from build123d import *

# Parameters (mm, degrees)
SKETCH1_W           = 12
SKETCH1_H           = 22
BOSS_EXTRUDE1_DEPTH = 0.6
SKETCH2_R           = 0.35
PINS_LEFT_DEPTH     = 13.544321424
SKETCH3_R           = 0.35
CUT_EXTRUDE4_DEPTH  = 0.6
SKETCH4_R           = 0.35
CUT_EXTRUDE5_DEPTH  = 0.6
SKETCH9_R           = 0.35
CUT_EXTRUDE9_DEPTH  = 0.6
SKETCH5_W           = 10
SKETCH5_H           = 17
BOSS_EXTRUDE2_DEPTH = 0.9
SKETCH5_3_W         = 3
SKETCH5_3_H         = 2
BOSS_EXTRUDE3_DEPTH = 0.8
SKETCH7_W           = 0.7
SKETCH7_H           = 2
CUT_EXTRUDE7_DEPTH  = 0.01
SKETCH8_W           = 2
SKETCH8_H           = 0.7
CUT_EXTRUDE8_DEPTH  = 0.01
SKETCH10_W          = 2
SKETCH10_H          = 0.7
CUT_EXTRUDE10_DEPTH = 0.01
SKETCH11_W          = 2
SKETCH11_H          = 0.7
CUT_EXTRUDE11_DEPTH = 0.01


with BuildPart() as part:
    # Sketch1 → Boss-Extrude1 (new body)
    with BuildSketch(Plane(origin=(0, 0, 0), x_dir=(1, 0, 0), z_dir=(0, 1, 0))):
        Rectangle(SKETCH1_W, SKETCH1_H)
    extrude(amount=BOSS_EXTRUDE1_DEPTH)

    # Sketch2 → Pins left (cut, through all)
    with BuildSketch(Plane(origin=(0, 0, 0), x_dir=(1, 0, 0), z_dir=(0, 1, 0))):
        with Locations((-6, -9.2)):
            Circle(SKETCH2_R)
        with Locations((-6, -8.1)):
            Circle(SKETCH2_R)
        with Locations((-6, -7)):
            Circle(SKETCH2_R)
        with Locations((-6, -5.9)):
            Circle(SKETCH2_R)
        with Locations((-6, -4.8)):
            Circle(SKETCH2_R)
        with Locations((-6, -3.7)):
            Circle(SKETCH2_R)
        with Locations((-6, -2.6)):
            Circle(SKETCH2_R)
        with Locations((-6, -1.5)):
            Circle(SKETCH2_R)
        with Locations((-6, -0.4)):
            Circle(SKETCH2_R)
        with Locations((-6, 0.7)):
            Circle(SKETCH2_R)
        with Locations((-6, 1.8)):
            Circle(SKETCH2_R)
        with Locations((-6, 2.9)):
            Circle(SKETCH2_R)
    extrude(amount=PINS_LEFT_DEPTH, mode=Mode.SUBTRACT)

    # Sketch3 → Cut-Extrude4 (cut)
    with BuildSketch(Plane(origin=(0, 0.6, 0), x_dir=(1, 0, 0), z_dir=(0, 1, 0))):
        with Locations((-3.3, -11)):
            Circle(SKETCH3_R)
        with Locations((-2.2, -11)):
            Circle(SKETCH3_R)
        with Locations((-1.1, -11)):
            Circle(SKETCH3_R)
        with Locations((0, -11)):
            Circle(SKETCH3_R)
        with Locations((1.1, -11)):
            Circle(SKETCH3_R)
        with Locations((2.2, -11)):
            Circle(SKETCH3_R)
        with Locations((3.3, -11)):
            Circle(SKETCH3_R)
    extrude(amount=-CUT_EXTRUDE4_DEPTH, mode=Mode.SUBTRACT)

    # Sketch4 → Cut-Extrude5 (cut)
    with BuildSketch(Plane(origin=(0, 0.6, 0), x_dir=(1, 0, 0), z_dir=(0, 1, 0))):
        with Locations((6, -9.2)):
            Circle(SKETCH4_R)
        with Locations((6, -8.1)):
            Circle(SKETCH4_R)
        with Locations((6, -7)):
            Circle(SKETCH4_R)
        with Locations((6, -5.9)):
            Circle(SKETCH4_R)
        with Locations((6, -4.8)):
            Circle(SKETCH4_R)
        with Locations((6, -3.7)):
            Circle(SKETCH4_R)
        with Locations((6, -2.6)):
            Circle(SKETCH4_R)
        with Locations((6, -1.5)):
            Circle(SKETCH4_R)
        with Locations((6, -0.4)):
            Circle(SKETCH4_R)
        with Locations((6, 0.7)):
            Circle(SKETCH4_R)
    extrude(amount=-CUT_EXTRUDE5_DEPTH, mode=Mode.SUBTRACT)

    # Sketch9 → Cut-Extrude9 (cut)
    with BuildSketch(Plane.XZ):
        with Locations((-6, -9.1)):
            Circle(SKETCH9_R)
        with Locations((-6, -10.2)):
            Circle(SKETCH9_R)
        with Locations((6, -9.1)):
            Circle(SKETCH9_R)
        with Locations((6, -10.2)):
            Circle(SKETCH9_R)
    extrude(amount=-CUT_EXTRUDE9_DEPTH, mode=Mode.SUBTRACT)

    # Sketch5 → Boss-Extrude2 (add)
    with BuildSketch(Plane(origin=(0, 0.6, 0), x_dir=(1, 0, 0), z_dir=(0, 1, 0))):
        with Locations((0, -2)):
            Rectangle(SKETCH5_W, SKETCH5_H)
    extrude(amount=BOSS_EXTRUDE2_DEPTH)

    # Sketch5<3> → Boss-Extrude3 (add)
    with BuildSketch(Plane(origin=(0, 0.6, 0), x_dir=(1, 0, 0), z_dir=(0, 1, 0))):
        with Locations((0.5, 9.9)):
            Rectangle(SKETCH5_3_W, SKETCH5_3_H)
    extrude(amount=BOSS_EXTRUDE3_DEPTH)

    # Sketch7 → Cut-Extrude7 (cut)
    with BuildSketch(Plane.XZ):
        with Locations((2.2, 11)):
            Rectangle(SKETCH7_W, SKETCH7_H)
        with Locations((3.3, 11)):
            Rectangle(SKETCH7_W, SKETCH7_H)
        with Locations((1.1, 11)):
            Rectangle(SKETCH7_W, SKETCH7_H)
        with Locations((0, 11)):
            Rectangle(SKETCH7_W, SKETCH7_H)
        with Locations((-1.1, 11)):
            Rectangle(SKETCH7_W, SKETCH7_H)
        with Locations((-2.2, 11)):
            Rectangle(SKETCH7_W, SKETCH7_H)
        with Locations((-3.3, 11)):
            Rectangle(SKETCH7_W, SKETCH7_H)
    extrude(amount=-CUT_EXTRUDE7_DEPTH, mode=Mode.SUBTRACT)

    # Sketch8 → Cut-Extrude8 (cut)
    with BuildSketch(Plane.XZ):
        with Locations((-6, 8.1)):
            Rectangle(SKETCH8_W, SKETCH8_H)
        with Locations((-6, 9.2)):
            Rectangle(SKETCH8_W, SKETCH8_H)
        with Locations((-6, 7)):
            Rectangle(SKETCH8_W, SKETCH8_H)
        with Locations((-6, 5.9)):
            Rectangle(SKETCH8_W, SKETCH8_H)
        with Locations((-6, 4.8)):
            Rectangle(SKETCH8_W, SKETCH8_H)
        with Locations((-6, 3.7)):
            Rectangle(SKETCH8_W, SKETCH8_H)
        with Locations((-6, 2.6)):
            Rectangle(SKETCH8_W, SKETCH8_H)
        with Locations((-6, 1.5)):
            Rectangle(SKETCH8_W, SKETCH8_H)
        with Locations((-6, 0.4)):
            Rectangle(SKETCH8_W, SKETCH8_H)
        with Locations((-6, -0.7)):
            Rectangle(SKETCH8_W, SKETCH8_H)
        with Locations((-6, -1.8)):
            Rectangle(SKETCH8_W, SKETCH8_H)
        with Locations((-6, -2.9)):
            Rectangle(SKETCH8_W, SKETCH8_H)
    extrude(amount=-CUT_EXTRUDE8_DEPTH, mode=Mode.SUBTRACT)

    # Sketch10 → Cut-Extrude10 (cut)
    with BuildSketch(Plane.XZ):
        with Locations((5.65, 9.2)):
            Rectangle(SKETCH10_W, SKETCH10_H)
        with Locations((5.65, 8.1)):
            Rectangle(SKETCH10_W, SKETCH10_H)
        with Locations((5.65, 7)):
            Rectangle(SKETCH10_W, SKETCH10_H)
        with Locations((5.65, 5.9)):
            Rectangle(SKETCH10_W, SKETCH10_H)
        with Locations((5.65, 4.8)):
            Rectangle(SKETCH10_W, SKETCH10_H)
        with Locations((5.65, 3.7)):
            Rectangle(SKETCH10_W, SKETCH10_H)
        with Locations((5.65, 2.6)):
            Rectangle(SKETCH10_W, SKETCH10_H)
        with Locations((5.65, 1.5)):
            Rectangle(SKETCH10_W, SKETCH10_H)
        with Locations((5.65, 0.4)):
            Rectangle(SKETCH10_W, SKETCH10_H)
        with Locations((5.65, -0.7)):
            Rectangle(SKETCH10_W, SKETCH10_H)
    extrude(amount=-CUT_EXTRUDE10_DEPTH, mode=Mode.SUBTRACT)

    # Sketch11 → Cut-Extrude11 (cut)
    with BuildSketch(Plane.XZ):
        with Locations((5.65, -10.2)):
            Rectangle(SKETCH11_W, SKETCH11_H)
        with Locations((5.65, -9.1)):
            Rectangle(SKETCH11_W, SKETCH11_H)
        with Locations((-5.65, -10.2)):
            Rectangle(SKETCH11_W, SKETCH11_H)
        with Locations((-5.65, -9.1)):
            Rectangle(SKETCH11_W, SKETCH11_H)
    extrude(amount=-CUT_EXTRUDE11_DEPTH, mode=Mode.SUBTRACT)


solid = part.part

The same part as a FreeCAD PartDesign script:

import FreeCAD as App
import Part
import Sketcher
from FreeCAD import Vector
Q = App.Units.Quantity


def add_polygon(sketch, points):
    """Adds a closed chain of lines whose ends are joined by coincident constraints."""
    first, n = sketch.GeometryCount, len(points)
    for a, b in zip(points, points[1:] + points[:1]):
        sketch.addGeometry(Part.LineSegment(App.Vector(*a, 0), App.Vector(*b, 0)), False)
    for i in range(n):
        sketch.addConstraint(Sketcher.Constraint("Coincident", first + i, 2, first + (i + 1) % n, 1))

doc = App.newDocument("Part")
body = doc.addObject("PartDesign::Body", "Body")

sketch1 = body.newObject("Sketcher::SketchObject", "Sketch")
sketch1.AttachmentSupport = (doc.getObject("XZ_Plane"), [""])
sketch1.MapMode = "FlatFace"
add_polygon(sketch1, [(-6, -11), (-6, 11), (6, 11), (6, -11)])
sketch1.addConstraint([
    Sketcher.Constraint("Vertical", 0),
    Sketcher.Constraint("Horizontal", 1),
    Sketcher.Constraint("Vertical", 2),
    Sketcher.Constraint("Horizontal", 3),
    Sketcher.Constraint("Symmetric", 0, 2, 2, 2, -1, 1),
    Sketcher.Constraint("DistanceX", 1, 1, 1, 2, Q("12 mm")),
    Sketcher.Constraint("DistanceY", 0, 1, 0, 2, Q("22 mm")),
])
pad1 = body.newObject("PartDesign::Pad", "Pad")
pad1.Profile = sketch1
pad1.Length = 0.6
pad1.Reversed = True

sketch2 = body.newObject("Sketcher::SketchObject", "Sketch001")
sketch2.AttachmentSupport = (doc.getObject("XZ_Plane"), [""])
sketch2.MapMode = "FlatFace"
sketch2.addGeometry([
    Part.Circle(Vector(-6, 9.2, 0), Vector(0, 0, 1), 0.35),
    Part.Circle(Vector(-6, 8.1, 0), Vector(0, 0, 1), 0.35),
    Part.Circle(Vector(-6, 7, 0), Vector(0, 0, 1), 0.35),
    Part.Circle(Vector(-6, 5.9, 0), Vector(0, 0, 1), 0.35),
    Part.Circle(Vector(-6, 4.8, 0), Vector(0, 0, 1), 0.35),
    Part.Circle(Vector(-6, 3.7, 0), Vector(0, 0, 1), 0.35),
    Part.Circle(Vector(-6, 2.6, 0), Vector(0, 0, 1), 0.35),
    Part.Circle(Vector(-6, 1.5, 0), Vector(0, 0, 1), 0.35),
    Part.Circle(Vector(-6, 0.4, 0), Vector(0, 0, 1), 0.35),
    Part.Circle(Vector(-6, -0.7, 0), Vector(0, 0, 1), 0.35),
    Part.Circle(Vector(-6, -1.8, 0), Vector(0, 0, 1), 0.35),
    Part.Circle(Vector(-6, -2.9, 0), Vector(0, 0, 1), 0.35),
], False)
sketch2.addConstraint([
    Sketcher.Constraint("Equal", 0, 1),
    Sketcher.Constraint("Equal", 1, 2),
    Sketcher.Constraint("Equal", 2, 3),
    Sketcher.Constraint("Equal", 3, 4),
    Sketcher.Constraint("Equal", 4, 5),
    Sketcher.Constraint("Equal", 5, 6),
    Sketcher.Constraint("Equal", 6, 7),
    Sketcher.Constraint("Equal", 7, 8),
    Sketcher.Constraint("Equal", 8, 9),
    Sketcher.Constraint("Equal", 9, 10),
    Sketcher.Constraint("Equal", 10, 11),
    Sketcher.Constraint("Vertical", 0, 3, 1, 3),
    Sketcher.Constraint("Vertical", 1, 3, 2, 3),
    Sketcher.Constraint("Vertical", 2, 3, 3, 3),
    Sketcher.Constraint("Vertical", 3, 3, 4, 3),
    Sketcher.Constraint("Vertical", 4, 3, 5, 3),
    Sketcher.Constraint("Vertical", 5, 3, 6, 3),
    Sketcher.Constraint("Vertical", 6, 3, 7, 3),
    Sketcher.Constraint("Vertical", 7, 3, 8, 3),
    Sketcher.Constraint("Vertical", 8, 3, 9, 3),
    Sketcher.Constraint("Vertical", 9, 3, 10, 3),
    Sketcher.Constraint("Vertical", 10, 3, 11, 3),
    Sketcher.Constraint("Diameter", 0, Q("0.7 mm")),
    Sketcher.Constraint("DistanceX", 0, 3, -1, 1, Q("6 mm")),
    Sketcher.Constraint("DistanceY", -1, 1, 2, 3, Q("7 mm")),
    Sketcher.Constraint("DistanceY", -1, 1, 0, 3, Q("9.2 mm")),
    Sketcher.Constraint("DistanceY", -1, 1, 1, 3, Q("8.1 mm")),
    Sketcher.Constraint("DistanceY", -1, 1, 3, 3, Q("5.9 mm")),
    Sketcher.Constraint("DistanceY", -1, 1, 4, 3, Q("4.8 mm")),
    Sketcher.Constraint("DistanceY", -1, 1, 5, 3, Q("3.7 mm")),
    Sketcher.Constraint("DistanceY", -1, 1, 6, 3, Q("2.6 mm")),
    Sketcher.Constraint("DistanceY", -1, 1, 7, 3, Q("1.5 mm")),
    Sketcher.Constraint("DistanceY", -1, 1, 8, 3, Q("0.4 mm")),
    Sketcher.Constraint("DistanceY", 9, 3, -1, 1, Q("0.7 mm")),
    Sketcher.Constraint("DistanceY", 10, 3, -1, 1, Q("1.8 mm")),
    Sketcher.Constraint("DistanceY", 11, 3, -1, 1, Q("2.9 mm")),
])
pocket1 = body.newObject("PartDesign::Pocket", "Pocket")
pocket1.Profile = sketch2
pocket1.Type = "ThroughAll"

sketch3 = body.newObject("Sketcher::SketchObject", "Sketch002")
sketch3.AttachmentSupport = (doc.getObject("XZ_Plane"), [""])
sketch3.MapMode = "FlatFace"
sketch3.AttachmentOffset = App.Placement(Vector(0, 0, -0.6), App.Rotation())
sketch3.addGeometry([
    Part.Circle(Vector(-3.3, 11, 0), Vector(0, 0, 1), 0.35),
    Part.Circle(Vector(-2.2, 11, 0), Vector(0, 0, 1), 0.35),
    Part.Circle(Vector(-1.1, 11, 0), Vector(0, 0, 1), 0.35),
    Part.Circle(Vector(0, 11, 0), Vector(0, 0, 1), 0.35),
    Part.Circle(Vector(1.1, 11, 0), Vector(0, 0, 1), 0.35),
    Part.Circle(Vector(2.2, 11, 0), Vector(0, 0, 1), 0.35),
    Part.Circle(Vector(3.3, 11, 0), Vector(0, 0, 1), 0.35),
], False)
sketch3.addConstraint([
    Sketcher.Constraint("Equal", 0, 1),
    Sketcher.Constraint("Equal", 1, 2),
    Sketcher.Constraint("Equal", 2, 3),
    Sketcher.Constraint("Equal", 3, 4),
    Sketcher.Constraint("Equal", 4, 5),
    Sketcher.Constraint("Equal", 5, 6),
    Sketcher.Constraint("Symmetric", 2, 3, 4, 3, -2),
    Sketcher.Constraint("Symmetric", 1, 3, 5, 3, -2),
    Sketcher.Constraint("Symmetric", 0, 3, 6, 3, -2),
    Sketcher.Constraint("PointOnObject", 3, 3, -2),
    Sketcher.Constraint("Horizontal", 0, 3, 1, 3),
    Sketcher.Constraint("Horizontal", 1, 3, 2, 3),
    Sketcher.Constraint("Horizontal", 2, 3, 3, 3),
    Sketcher.Constraint("Diameter", 0, Q("0.7 mm")),
    Sketcher.Constraint("DistanceY", -1, 1, 0, 3, Q("11 mm")),
    Sketcher.Constraint("DistanceX", 0, 3, -1, 1, Q("3.3 mm")),
    Sketcher.Constraint("DistanceX", 1, 3, -1, 1, Q("2.2 mm")),
    Sketcher.Constraint("DistanceX", 2, 3, -1, 1, Q("1.1 mm")),
])
pocket2 = body.newObject("PartDesign::Pocket", "Pocket001")
pocket2.Profile = sketch3
pocket2.Length = 0.6
pocket2.Reversed = True

sketch4 = body.newObject("Sketcher::SketchObject", "Sketch003")
sketch4.AttachmentSupport = (doc.getObject("XZ_Plane"), [""])
sketch4.MapMode = "FlatFace"
sketch4.AttachmentOffset = App.Placement(Vector(0, 0, -0.6), App.Rotation())
sketch4.addGeometry([
    Part.Circle(Vector(6, 9.2, 0), Vector(0, 0, 1), 0.35),
    Part.Circle(Vector(6, 8.1, 0), Vector(0, 0, 1), 0.35),
    Part.Circle(Vector(6, 7, 0), Vector(0, 0, 1), 0.35),
    Part.Circle(Vector(6, 5.9, 0), Vector(0, 0, 1), 0.35),
    Part.Circle(Vector(6, 4.8, 0), Vector(0, 0, 1), 0.35),
    Part.Circle(Vector(6, 3.7, 0), Vector(0, 0, 1), 0.35),
    Part.Circle(Vector(6, 2.6, 0), Vector(0, 0, 1), 0.35),
    Part.Circle(Vector(6, 1.5, 0), Vector(0, 0, 1), 0.35),
    Part.Circle(Vector(6, 0.4, 0), Vector(0, 0, 1), 0.35),
    Part.Circle(Vector(6, -0.7, 0), Vector(0, 0, 1), 0.35),
], False)
sketch4.addConstraint([
    Sketcher.Constraint("Equal", 0, 1),
    Sketcher.Constraint("Equal", 1, 2),
    Sketcher.Constraint("Equal", 2, 3),
    Sketcher.Constraint("Equal", 3, 4),
    Sketcher.Constraint("Equal", 4, 5),
    Sketcher.Constraint("Equal", 5, 6),
    Sketcher.Constraint("Equal", 6, 7),
    Sketcher.Constraint("Equal", 7, 8),
    Sketcher.Constraint("Equal", 8, 9),
    Sketcher.Constraint("Vertical", 0, 3, 1, 3),
    Sketcher.Constraint("Vertical", 1, 3, 2, 3),
    Sketcher.Constraint("Vertical", 2, 3, 3, 3),
    Sketcher.Constraint("Vertical", 3, 3, 4, 3),
    Sketcher.Constraint("Vertical", 4, 3, 5, 3),
    Sketcher.Constraint("Vertical", 5, 3, 6, 3),
    Sketcher.Constraint("Vertical", 6, 3, 7, 3),
    Sketcher.Constraint("Vertical", 7, 3, 8, 3),
    Sketcher.Constraint("Vertical", 8, 3, 9, 3),
    Sketcher.Constraint("Diameter", 0, Q("0.7 mm")),
    Sketcher.Constraint("DistanceX", -1, 1, 0, 3, Q("6 mm")),
    Sketcher.Constraint("DistanceY", -1, 1, 2, 3, Q("7 mm")),
    Sketcher.Constraint("DistanceY", -1, 1, 0, 3, Q("9.2 mm")),
    Sketcher.Constraint("DistanceY", -1, 1, 1, 3, Q("8.1 mm")),
    Sketcher.Constraint("DistanceY", -1, 1, 3, 3, Q("5.9 mm")),
    Sketcher.Constraint("DistanceY", -1, 1, 4, 3, Q("4.8 mm")),
    Sketcher.Constraint("DistanceY", -1, 1, 5, 3, Q("3.7 mm")),
    Sketcher.Constraint("DistanceY", -1, 1, 6, 3, Q("2.6 mm")),
    Sketcher.Constraint("DistanceY", -1, 1, 7, 3, Q("1.5 mm")),
    Sketcher.Constraint("DistanceY", -1, 1, 8, 3, Q("0.4 mm")),
    Sketcher.Constraint("DistanceY", 9, 3, -1, 1, Q("0.7 mm")),
])
pocket3 = body.newObject("PartDesign::Pocket", "Pocket002")
pocket3.Profile = sketch4
pocket3.Length = 0.6
pocket3.Reversed = True

sketch5 = body.newObject("Sketcher::SketchObject", "Sketch004")
sketch5.AttachmentSupport = (doc.getObject("XZ_Plane"), [""])
sketch5.MapMode = "FlatFace"
sketch5.addGeometry([
    Part.Circle(Vector(-6, -9.1, 0), Vector(0, 0, 1), 0.35),
    Part.Circle(Vector(-6, -10.2, 0), Vector(0, 0, 1), 0.35),
    Part.Circle(Vector(6, -9.1, 0), Vector(0, 0, 1), 0.35),
    Part.Circle(Vector(6, -10.2, 0), Vector(0, 0, 1), 0.35),
], False)
sketch5.addConstraint([
    Sketcher.Constraint("Equal", 0, 1),
    Sketcher.Constraint("Equal", 1, 2),
    Sketcher.Constraint("Equal", 2, 3),
    Sketcher.Constraint("Symmetric", 0, 3, 2, 3, -2),
    Sketcher.Constraint("Symmetric", 1, 3, 3, 3, -2),
    Sketcher.Constraint("Vertical", 0, 3, 1, 3),
    Sketcher.Constraint("Diameter", 0, Q("0.7 mm")),
    Sketcher.Constraint("DistanceX", 0, 3, -1, 1, Q("6 mm")),
    Sketcher.Constraint("DistanceY", 0, 3, -1, 1, Q("9.1 mm")),
    Sketcher.Constraint("DistanceY", 1, 3, -1, 1, Q("10.2 mm")),
])
pocket4 = body.newObject("PartDesign::Pocket", "Pocket003")
pocket4.Profile = sketch5
pocket4.Length = 0.6

sketch6 = body.newObject("Sketcher::SketchObject", "Sketch005")
sketch6.AttachmentSupport = (doc.getObject("XZ_Plane"), [""])
sketch6.MapMode = "FlatFace"
sketch6.AttachmentOffset = App.Placement(Vector(0, 0, -0.6), App.Rotation())
add_polygon(sketch6, [(-5, -6), (-5, 10), (5, 10), (5, -6)])
sketch6.addConstraint([
    Sketcher.Constraint("Vertical", 0),
    Sketcher.Constraint("Horizontal", 1),
    Sketcher.Constraint("Vertical", 2),
    Sketcher.Constraint("Horizontal", 3),
    Sketcher.Constraint("DistanceX", 1, 1, 1, 2, Q("10 mm")),
    Sketcher.Constraint("DistanceY", 0, 1, 0, 2, Q("17 mm")),
    Sketcher.Constraint("DistanceX", 0, 2, -1, 1, Q("5 mm")),
    Sketcher.Constraint("DistanceY", -1, 1, 0, 2, Q("10.5 mm")),
])
pad2 = body.newObject("PartDesign::Pad", "Pad001")
pad2.Profile = sketch6
pad2.Length = 0.9
pad2.Reversed = True

sketch7 = body.newObject("Sketcher::SketchObject", "Sketch006")
sketch7.AttachmentSupport = (doc.getObject("XZ_Plane"), [""])
sketch7.MapMode = "FlatFace"
sketch7.AttachmentOffset = App.Placement(Vector(0, 0, -0.6), App.Rotation())
add_polygon(sketch7, [(-1, -10.9), (-1, -8.9), (2, -8.9), (2, -10.9)])
sketch7.addConstraint([
    Sketcher.Constraint("Vertical", 0),
    Sketcher.Constraint("Horizontal", 1),
    Sketcher.Constraint("Vertical", 2),
    Sketcher.Constraint("Horizontal", 3),
    Sketcher.Constraint("DistanceX", 1, 1, 1, 2, Q("3 mm")),
    Sketcher.Constraint("DistanceY", 0, 1, 0, 2, Q("2 mm")),
    Sketcher.Constraint("DistanceX", 0, 2, -1, 1, Q("1 mm")),
    Sketcher.Constraint("DistanceY", 0, 2, -1, 1, Q("8.9 mm")),
])
pad3 = body.newObject("PartDesign::Pad", "Pad002")
pad3.Profile = sketch7
pad3.Length = 0.8
pad3.Reversed = True

sketch8 = body.newObject("Sketcher::SketchObject", "Sketch007")
sketch8.AttachmentSupport = (doc.getObject("XZ_Plane"), [""])
sketch8.MapMode = "FlatFace"
add_polygon(sketch8, [(1.9, 12), (1.9, 10), (2.5, 10), (2.5, 12)])
add_polygon(sketch8, [(3, 12), (3, 10), (3.6, 10), (3.6, 12)])
add_polygon(sketch8, [(0.8, 12), (0.8, 10), (1.4, 10), (1.4, 12)])
add_polygon(sketch8, [(-0.3, 12), (-0.3, 10), (0.3, 10), (0.3, 12)])
add_polygon(sketch8, [(-1.4, 12), (-1.4, 10), (-0.8, 10), (-0.8, 12)])
add_polygon(sketch8, [(-2.5, 12), (-2.5, 10), (-1.9, 10), (-1.9, 12)])
add_polygon(sketch8, [(-3.6, 12), (-3.6, 10), (-3, 10), (-3, 12)])
sketch8.addConstraint([
    Sketcher.Constraint("Vertical", 0),
    Sketcher.Constraint("Horizontal", 1),
    Sketcher.Constraint("Vertical", 2),
    Sketcher.Constraint("Horizontal", 3),
    Sketcher.Constraint("Vertical", 4),
    Sketcher.Constraint("Horizontal", 5),
    Sketcher.Constraint("Vertical", 6),
    Sketcher.Constraint("Horizontal", 7),
    Sketcher.Constraint("Vertical", 8),
    Sketcher.Constraint("Horizontal", 9),
    Sketcher.Constraint("Vertical", 10),
    Sketcher.Constraint("Horizontal", 11),
    Sketcher.Constraint("Vertical", 12),
    Sketcher.Constraint("Horizontal", 13),
    Sketcher.Constraint("Vertical", 14),
    Sketcher.Constraint("Horizontal", 15),
    Sketcher.Constraint("Vertical", 16),
    Sketcher.Constraint("Horizontal", 17),
    Sketcher.Constraint("Vertical", 18),
    Sketcher.Constraint("Horizontal", 19),
    Sketcher.Constraint("Vertical", 20),
    Sketcher.Constraint("Horizontal", 21),
    Sketcher.Constraint("Vertical", 22),
    Sketcher.Constraint("Horizontal", 23),
    Sketcher.Constraint("Vertical", 24),
    Sketcher.Constraint("Horizontal", 25),
    Sketcher.Constraint("Vertical", 26),
    Sketcher.Constraint("Horizontal", 27),
    Sketcher.Constraint("Symmetric", 9, 2, 16, 2, -2),
    Sketcher.Constraint("Symmetric", 11, 2, 18, 2, -2),
    Sketcher.Constraint("Symmetric", 1, 2, 20, 2, -2),
    Sketcher.Constraint("Symmetric", 3, 2, 22, 2, -2),
    Sketcher.Constraint("Symmetric", 5, 2, 24, 2, -2),
    Sketcher.Constraint("Symmetric", 7, 2, 26, 2, -2),
    Sketcher.Constraint("Horizontal", 1, 2, 4, 2),
    Sketcher.Constraint("Horizontal", 3, 2, 6, 2),
    Sketcher.Constraint("Horizontal", 5, 2, 8, 2),
    Sketcher.Constraint("Horizontal", 7, 2, 10, 2),
    Sketcher.Constraint("Horizontal", 9, 2, 12, 2),
    Sketcher.Constraint("Horizontal", 11, 2, 14, 2),
    Sketcher.Constraint("Equal", 3, 5),
    Sketcher.Constraint("Equal", 7, 9),
    Sketcher.Constraint("Equal", 11, 13),
    Sketcher.Constraint("DistanceY", 0, 2, 0, 1, Q("2 mm")),
    Sketcher.Constraint("DistanceX", 1, 1, 1, 2, Q("0.7 mm")),
    Sketcher.Constraint("DistanceY", -1, 1, 0, 2, Q("10 mm")),
    Sketcher.Constraint("DistanceX", 1, 2, 4, 2, Q("0.4 mm")),
    Sketcher.Constraint("DistanceX", 8, 2, 0, 2, Q("1.1 mm")),
    Sketcher.Constraint("DistanceX", 12, 2, 8, 2, Q("1.1 mm")),
    Sketcher.Constraint("DistanceX", 16, 2, 12, 2, Q("1.1 mm")),
])
pocket5 = body.newObject("PartDesign::Pocket", "Pocket004")
pocket5.Profile = sketch8
pocket5.Length = 0.01

sketch9 = body.newObject("Sketcher::SketchObject", "Sketch008")
sketch9.AttachmentSupport = (doc.getObject("XZ_Plane"), [""])
sketch9.MapMode = "FlatFace"
add_polygon(sketch9, [(-7, 8.4), (-7, 7.8), (-5, 7.8), (-5, 8.4)])
add_polygon(sketch9, [(-7, 9.6), (-7, 8.8), (-5, 8.8), (-5, 9.6)])
add_polygon(sketch9, [(-7, 7.3), (-7, 6.7), (-5, 6.7), (-5, 7.3)])
add_polygon(sketch9, [(-7, 6.2), (-7, 5.5), (-5, 5.5), (-5, 6.2)])
add_polygon(sketch9, [(-7, 5.2), (-7, 4.5), (-5, 4.5), (-5, 5.2)])
add_polygon(sketch9, [(-7, 4), (-7, 3.4), (-5, 3.4), (-5, 4)])
add_polygon(sketch9, [(-7, 3), (-7, 2.2), (-5, 2.2), (-5, 3)])
add_polygon(sketch9, [(-7, 1.9), (-7, 1.1), (-5, 1.1), (-5, 1.9)])
add_polygon(sketch9, [(-7, 0.8), (-7, 0.1), (-5, 0.1), (-5, 0.8)])
add_polygon(sketch9, [(-7, -0.3), (-7, -1.1), (-5, -1.1), (-5, -0.3)])
add_polygon(sketch9, [(-7, -1.4), (-7, -2.1), (-5, -2.1), (-5, -1.4)])
add_polygon(sketch9, [(-7, -2.5), (-7, -3.2), (-5, -3.2), (-5, -2.5)])
sketch9.addConstraint([
    Sketcher.Constraint("Vertical", 0),
    Sketcher.Constraint("Horizontal", 1),
    Sketcher.Constraint("Vertical", 2),
    Sketcher.Constraint("Horizontal", 3),
    Sketcher.Constraint("Vertical", 4),
    Sketcher.Constraint("Horizontal", 5),
    Sketcher.Constraint("Vertical", 6),
    Sketcher.Constraint("Horizontal", 7),
    Sketcher.Constraint("Vertical", 8),
    Sketcher.Constraint("Horizontal", 9),
    Sketcher.Constraint("Vertical", 10),
    Sketcher.Constraint("Horizontal", 11),
    Sketcher.Constraint("Vertical", 12),
    Sketcher.Constraint("Horizontal", 13),
    Sketcher.Constraint("Vertical", 14),
    Sketcher.Constraint("Horizontal", 15),
    Sketcher.Constraint("Vertical", 16),
    Sketcher.Constraint("Horizontal", 17),
    Sketcher.Constraint("Vertical", 18),
    Sketcher.Constraint("Horizontal", 19),
    Sketcher.Constraint("Vertical", 20),
    Sketcher.Constraint("Horizontal", 21),
    Sketcher.Constraint("Vertical", 22),
    Sketcher.Constraint("Horizontal", 23),
    Sketcher.Constraint("Vertical", 24),
    Sketcher.Constraint("Horizontal", 25),
    Sketcher.Constraint("Vertical", 26),
    Sketcher.Constraint("Horizontal", 27),
    Sketcher.Constraint("Vertical", 28),
    Sketcher.Constraint("Horizontal", 29),
    Sketcher.Constraint("Vertical", 30),
    Sketcher.Constraint("Horizontal", 31),
    Sketcher.Constraint("Vertical", 32),
    Sketcher.Constraint("Horizontal", 33),
    Sketcher.Constraint("Vertical", 34),
    Sketcher.Constraint("Horizontal", 35),
    Sketcher.Constraint("Vertical", 36),
    Sketcher.Constraint("Horizontal", 37),
    Sketcher.Constraint("Vertical", 38),
    Sketcher.Constraint("Horizontal", 39),
    Sketcher.Constraint("Vertical", 40),
    Sketcher.Constraint("Horizontal", 41),
    Sketcher.Constraint("Vertical", 42),
    Sketcher.Constraint("Horizontal", 43),
    Sketcher.Constraint("Vertical", 44),
    Sketcher.Constraint("Horizontal", 45),
    Sketcher.Constraint("Vertical", 46),
    Sketcher.Constraint("Horizontal", 47),
    Sketcher.Constraint("Vertical", 3, 2, 4, 2),
    Sketcher.Constraint("Vertical", 2, 2, 5, 2),
    Sketcher.Constraint("Vertical", 7, 2, 8, 2),
    Sketcher.Constraint("Vertical", 6, 2, 9, 2),
    Sketcher.Constraint("Vertical", 11, 2, 12, 2),
    Sketcher.Constraint("Vertical", 10, 2, 13, 2),
    Sketcher.Constraint("Vertical", 15, 2, 16, 2),
    Sketcher.Constraint("Vertical", 14, 2, 17, 2),
    Sketcher.Constraint("Vertical", 19, 2, 20, 2),
    Sketcher.Constraint("Vertical", 18, 2, 21, 2),
    Sketcher.Constraint("Vertical", 23, 2, 24, 2),
    Sketcher.Constraint("Vertical", 22, 2, 25, 2),
    Sketcher.Constraint("Vertical", 27, 2, 28, 2),
    Sketcher.Constraint("Vertical", 26, 2, 29, 2),
    Sketcher.Constraint("Vertical", 31, 2, 32, 2),
    Sketcher.Constraint("Vertical", 30, 2, 33, 2),
    Sketcher.Constraint("Vertical", 35, 2, 36, 2),
    Sketcher.Constraint("Vertical", 34, 2, 37, 2),
    Sketcher.Constraint("Vertical", 39, 2, 40, 2),
    Sketcher.Constraint("Vertical", 38, 2, 41, 2),
    Sketcher.Constraint("Vertical", 43, 2, 44, 2),
    Sketcher.Constraint("Vertical", 42, 2, 45, 2),
    Sketcher.Constraint("Equal", 2, 4),
    Sketcher.Constraint("Equal", 6, 8),
    Sketcher.Constraint("Equal", 10, 12),
    Sketcher.Constraint("Equal", 14, 16),
    Sketcher.Constraint("Equal", 18, 20),
    Sketcher.Constraint("Equal", 22, 24),
    Sketcher.Constraint("Equal", 26, 28),
    Sketcher.Constraint("Equal", 30, 32),
    Sketcher.Constraint("Equal", 34, 36),
    Sketcher.Constraint("Equal", 38, 40),
    Sketcher.Constraint("Equal", 42, 44),
    Sketcher.Constraint("DistanceX", 1, 1, 1, 2, Q("2 mm")),
    Sketcher.Constraint("DistanceY", 0, 2, 0, 1, Q("0.7 mm")),
    Sketcher.Constraint("DistanceX", 0, 2, -1, 1, Q("7 mm")),
    Sketcher.Constraint("DistanceY", 3, 2, 4, 2, Q("0.4 mm")),
    Sketcher.Constraint("DistanceY", 8, 2, 0, 2, Q("1.1 mm")),
    Sketcher.Constraint("DistanceY", 12, 2, 8, 2, Q("1.1 mm")),
    Sketcher.Constraint("DistanceY", 16, 2, 12, 2, Q("1.1 mm")),
    Sketcher.Constraint("DistanceY", 20, 2, 16, 2, Q("1.1 mm")),
    Sketcher.Constraint("DistanceY", 24, 2, 20, 2, Q("1.1 mm")),
    Sketcher.Constraint("DistanceY", 28, 2, 24, 2, Q("1.1 mm")),
    Sketcher.Constraint("DistanceY", 32, 2, 28, 2, Q("1.1 mm")),
    Sketcher.Constraint("DistanceY", 36, 2, 32, 2, Q("1.1 mm")),
    Sketcher.Constraint("DistanceY", 40, 2, 36, 2, Q("1.1 mm")),
    Sketcher.Constraint("DistanceY", 44, 2, 40, 2, Q("1.1 mm")),
    Sketcher.Constraint("DistanceY", -1, 1, 0, 2, Q("7.75 mm")),
])
pocket6 = body.newObject("PartDesign::Pocket", "Pocket005")
pocket6.Profile = sketch9
pocket6.Length = 0.01

sketch10 = body.newObject("Sketcher::SketchObject", "Sketch009")
sketch10.AttachmentSupport = (doc.getObject("XZ_Plane"), [""])
sketch10.MapMode = "FlatFace"
add_polygon(sketch10, [(4.7, 9.6), (4.7, 8.8), (6.7, 8.8), (6.7, 9.6)])
add_polygon(sketch10, [(4.7, 8.4), (4.7, 7.8), (6.7, 7.8), (6.7, 8.4)])
add_polygon(sketch10, [(4.7, 7.3), (4.7, 6.7), (6.7, 6.7), (6.7, 7.3)])
add_polygon(sketch10, [(4.7, 6.2), (4.7, 5.5), (6.7, 5.5), (6.7, 6.2)])
add_polygon(sketch10, [(4.7, 5.2), (4.7, 4.5), (6.7, 4.5), (6.7, 5.2)])
add_polygon(sketch10, [(4.7, 4), (4.7, 3.4), (6.7, 3.4), (6.7, 4)])
add_polygon(sketch10, [(4.7, 3), (4.7, 2.2), (6.7, 2.2), (6.7, 3)])
add_polygon(sketch10, [(4.7, 1.9), (4.7, 1.1), (6.7, 1.1), (6.7, 1.9)])
add_polygon(sketch10, [(4.7, 0.8), (4.7, 0.1), (6.7, 0.1), (6.7, 0.8)])
add_polygon(sketch10, [(4.7, -0.3), (4.7, -1.1), (6.7, -1.1), (6.7, -0.3)])
sketch10.addConstraint([
    Sketcher.Constraint("Vertical", 0),
    Sketcher.Constraint("Horizontal", 1),
    Sketcher.Constraint("Vertical", 2),
    Sketcher.Constraint("Horizontal", 3),
    Sketcher.Constraint("Vertical", 4),
    Sketcher.Constraint("Horizontal", 5),
    Sketcher.Constraint("Vertical", 6),
    Sketcher.Constraint("Horizontal", 7),
    Sketcher.Constraint("Vertical", 8),
    Sketcher.Constraint("Horizontal", 9),
    Sketcher.Constraint("Vertical", 10),
    Sketcher.Constraint("Horizontal", 11),
    Sketcher.Constraint("Vertical", 12),
    Sketcher.Constraint("Horizontal", 13),
    Sketcher.Constraint("Vertical", 14),
    Sketcher.Constraint("Horizontal", 15),
    Sketcher.Constraint("Vertical", 16),
    Sketcher.Constraint("Horizontal", 17),
    Sketcher.Constraint("Vertical", 18),
    Sketcher.Constraint("Horizontal", 19),
    Sketcher.Constraint("Vertical", 20),
    Sketcher.Constraint("Horizontal", 21),
    Sketcher.Constraint("Vertical", 22),
    Sketcher.Constraint("Horizontal", 23),
    Sketcher.Constraint("Vertical", 24),
    Sketcher.Constraint("Horizontal", 25),
    Sketcher.Constraint("Vertical", 26),
    Sketcher.Constraint("Horizontal", 27),
    Sketcher.Constraint("Vertical", 28),
    Sketcher.Constraint("Horizontal", 29),
    Sketcher.Constraint("Vertical", 30),
    Sketcher.Constraint("Horizontal", 31),
    Sketcher.Constraint("Vertical", 32),
    Sketcher.Constraint("Horizontal", 33),
    Sketcher.Constraint("Vertical", 34),
    Sketcher.Constraint("Horizontal", 35),
    Sketcher.Constraint("Vertical", 36),
    Sketcher.Constraint("Horizontal", 37),
    Sketcher.Constraint("Vertical", 38),
    Sketcher.Constraint("Horizontal", 39),
    Sketcher.Constraint("Vertical", 3, 2, 4, 2),
    Sketcher.Constraint("Vertical", 2, 2, 5, 2),
    Sketcher.Constraint("Vertical", 7, 2, 8, 2),
    Sketcher.Constraint("Vertical", 6, 2, 9, 2),
    Sketcher.Constraint("Vertical", 11, 2, 12, 2),
    Sketcher.Constraint("Vertical", 10, 2, 13, 2),
    Sketcher.Constraint("Vertical", 15, 2, 16, 2),
    Sketcher.Constraint("Vertical", 14, 2, 17, 2),
    Sketcher.Constraint("Vertical", 19, 2, 20, 2),
    Sketcher.Constraint("Vertical", 18, 2, 21, 2),
    Sketcher.Constraint("Vertical", 23, 2, 24, 2),
    Sketcher.Constraint("Vertical", 22, 2, 25, 2),
    Sketcher.Constraint("Vertical", 27, 2, 28, 2),
    Sketcher.Constraint("Vertical", 26, 2, 29, 2),
    Sketcher.Constraint("Vertical", 31, 2, 32, 2),
    Sketcher.Constraint("Vertical", 30, 2, 33, 2),
    Sketcher.Constraint("Vertical", 35, 2, 36, 2),
    Sketcher.Constraint("Vertical", 34, 2, 37, 2),
    Sketcher.Constraint("Equal", 2, 4),
    Sketcher.Constraint("Equal", 6, 8),
    Sketcher.Constraint("Equal", 10, 12),
    Sketcher.Constraint("Equal", 14, 16),
    Sketcher.Constraint("Equal", 18, 20),
    Sketcher.Constraint("Equal", 22, 24),
    Sketcher.Constraint("Equal", 26, 28),
    Sketcher.Constraint("Equal", 30, 32),
    Sketcher.Constraint("Equal", 34, 36),
    Sketcher.Constraint("DistanceX", 1, 1, 1, 2, Q("2 mm")),
    Sketcher.Constraint("DistanceY", 0, 2, 0, 1, Q("0.7 mm")),
    Sketcher.Constraint("DistanceY", 4, 2, 0, 2, Q("1.1 mm")),
    Sketcher.Constraint("DistanceY", 8, 2, 4, 2, Q("1.1 mm")),
    Sketcher.Constraint("DistanceY", 12, 2, 8, 2, Q("1.1 mm")),
    Sketcher.Constraint("DistanceY", 16, 2, 12, 2, Q("1.1 mm")),
    Sketcher.Constraint("DistanceY", 20, 2, 16, 2, Q("1.1 mm")),
    Sketcher.Constraint("DistanceY", 24, 2, 20, 2, Q("1.1 mm")),
    Sketcher.Constraint("DistanceY", 28, 2, 24, 2, Q("1.1 mm")),
    Sketcher.Constraint("DistanceY", 32, 2, 28, 2, Q("1.1 mm")),
    Sketcher.Constraint("DistanceY", 36, 2, 32, 2, Q("1.1 mm")),
    Sketcher.Constraint("DistanceX", -1, 1, 0, 2, Q("4.65 mm")),
    Sketcher.Constraint("DistanceY", -1, 1, 0, 2, Q("8.85 mm")),
])
pocket7 = body.newObject("PartDesign::Pocket", "Pocket006")
pocket7.Profile = sketch10
pocket7.Length = 0.01

sketch11 = body.newObject("Sketcher::SketchObject", "Sketch010")
sketch11.AttachmentSupport = (doc.getObject("XZ_Plane"), [""])
sketch11.MapMode = "FlatFace"
add_polygon(sketch11, [(4.7, -9.8), (4.7, -10.6), (6.7, -10.6), (6.7, -9.8)])
add_polygon(sketch11, [(4.7, -8.8), (4.7, -9.4), (6.7, -9.4), (6.7, -8.8)])
add_polygon(sketch11, [(-6.7, -9.8), (-6.7, -10.6), (-4.7, -10.6), (-4.7, -9.8)])
add_polygon(sketch11, [(-6.7, -8.8), (-6.7, -9.4), (-4.7, -9.4), (-4.7, -8.8)])
sketch11.addConstraint([
    Sketcher.Constraint("Vertical", 0),
    Sketcher.Constraint("Horizontal", 1),
    Sketcher.Constraint("Vertical", 2),
    Sketcher.Constraint("Horizontal", 3),
    Sketcher.Constraint("Vertical", 4),
    Sketcher.Constraint("Horizontal", 5),
    Sketcher.Constraint("Vertical", 6),
    Sketcher.Constraint("Horizontal", 7),
    Sketcher.Constraint("Vertical", 8),
    Sketcher.Constraint("Horizontal", 9),
    Sketcher.Constraint("Vertical", 10),
    Sketcher.Constraint("Horizontal", 11),
    Sketcher.Constraint("Vertical", 12),
    Sketcher.Constraint("Horizontal", 13),
    Sketcher.Constraint("Vertical", 14),
    Sketcher.Constraint("Horizontal", 15),
    Sketcher.Constraint("Symmetric", 1, 2, 8, 2, -2),
    Sketcher.Constraint("Symmetric", 3, 2, 10, 2, -2),
    Sketcher.Constraint("Symmetric", 5, 2, 12, 2, -2),
    Sketcher.Constraint("Symmetric", 7, 2, 14, 2, -2),
    Sketcher.Constraint("Vertical", 3, 2, 4, 2),
    Sketcher.Constraint("Vertical", 2, 2, 5, 2),
    Sketcher.Constraint("Equal", 2, 4),
    Sketcher.Constraint("DistanceX", 1, 1, 1, 2, Q("2 mm")),
    Sketcher.Constraint("DistanceY", 0, 2, 0, 1, Q("0.7 mm")),
    Sketcher.Constraint("DistanceY", 3, 2, 4, 2, Q("0.4 mm")),
    Sketcher.Constraint("DistanceX", 8, 2, 0, 2, Q("11.3 mm")),
    Sketcher.Constraint("DistanceY", 0, 2, -1, 1, Q("10.55 mm")),
])
pocket8 = body.newObject("PartDesign::Pocket", "Pocket007")
pocket8.Profile = sketch11
pocket8.Length = 0.01

doc.recompute()
